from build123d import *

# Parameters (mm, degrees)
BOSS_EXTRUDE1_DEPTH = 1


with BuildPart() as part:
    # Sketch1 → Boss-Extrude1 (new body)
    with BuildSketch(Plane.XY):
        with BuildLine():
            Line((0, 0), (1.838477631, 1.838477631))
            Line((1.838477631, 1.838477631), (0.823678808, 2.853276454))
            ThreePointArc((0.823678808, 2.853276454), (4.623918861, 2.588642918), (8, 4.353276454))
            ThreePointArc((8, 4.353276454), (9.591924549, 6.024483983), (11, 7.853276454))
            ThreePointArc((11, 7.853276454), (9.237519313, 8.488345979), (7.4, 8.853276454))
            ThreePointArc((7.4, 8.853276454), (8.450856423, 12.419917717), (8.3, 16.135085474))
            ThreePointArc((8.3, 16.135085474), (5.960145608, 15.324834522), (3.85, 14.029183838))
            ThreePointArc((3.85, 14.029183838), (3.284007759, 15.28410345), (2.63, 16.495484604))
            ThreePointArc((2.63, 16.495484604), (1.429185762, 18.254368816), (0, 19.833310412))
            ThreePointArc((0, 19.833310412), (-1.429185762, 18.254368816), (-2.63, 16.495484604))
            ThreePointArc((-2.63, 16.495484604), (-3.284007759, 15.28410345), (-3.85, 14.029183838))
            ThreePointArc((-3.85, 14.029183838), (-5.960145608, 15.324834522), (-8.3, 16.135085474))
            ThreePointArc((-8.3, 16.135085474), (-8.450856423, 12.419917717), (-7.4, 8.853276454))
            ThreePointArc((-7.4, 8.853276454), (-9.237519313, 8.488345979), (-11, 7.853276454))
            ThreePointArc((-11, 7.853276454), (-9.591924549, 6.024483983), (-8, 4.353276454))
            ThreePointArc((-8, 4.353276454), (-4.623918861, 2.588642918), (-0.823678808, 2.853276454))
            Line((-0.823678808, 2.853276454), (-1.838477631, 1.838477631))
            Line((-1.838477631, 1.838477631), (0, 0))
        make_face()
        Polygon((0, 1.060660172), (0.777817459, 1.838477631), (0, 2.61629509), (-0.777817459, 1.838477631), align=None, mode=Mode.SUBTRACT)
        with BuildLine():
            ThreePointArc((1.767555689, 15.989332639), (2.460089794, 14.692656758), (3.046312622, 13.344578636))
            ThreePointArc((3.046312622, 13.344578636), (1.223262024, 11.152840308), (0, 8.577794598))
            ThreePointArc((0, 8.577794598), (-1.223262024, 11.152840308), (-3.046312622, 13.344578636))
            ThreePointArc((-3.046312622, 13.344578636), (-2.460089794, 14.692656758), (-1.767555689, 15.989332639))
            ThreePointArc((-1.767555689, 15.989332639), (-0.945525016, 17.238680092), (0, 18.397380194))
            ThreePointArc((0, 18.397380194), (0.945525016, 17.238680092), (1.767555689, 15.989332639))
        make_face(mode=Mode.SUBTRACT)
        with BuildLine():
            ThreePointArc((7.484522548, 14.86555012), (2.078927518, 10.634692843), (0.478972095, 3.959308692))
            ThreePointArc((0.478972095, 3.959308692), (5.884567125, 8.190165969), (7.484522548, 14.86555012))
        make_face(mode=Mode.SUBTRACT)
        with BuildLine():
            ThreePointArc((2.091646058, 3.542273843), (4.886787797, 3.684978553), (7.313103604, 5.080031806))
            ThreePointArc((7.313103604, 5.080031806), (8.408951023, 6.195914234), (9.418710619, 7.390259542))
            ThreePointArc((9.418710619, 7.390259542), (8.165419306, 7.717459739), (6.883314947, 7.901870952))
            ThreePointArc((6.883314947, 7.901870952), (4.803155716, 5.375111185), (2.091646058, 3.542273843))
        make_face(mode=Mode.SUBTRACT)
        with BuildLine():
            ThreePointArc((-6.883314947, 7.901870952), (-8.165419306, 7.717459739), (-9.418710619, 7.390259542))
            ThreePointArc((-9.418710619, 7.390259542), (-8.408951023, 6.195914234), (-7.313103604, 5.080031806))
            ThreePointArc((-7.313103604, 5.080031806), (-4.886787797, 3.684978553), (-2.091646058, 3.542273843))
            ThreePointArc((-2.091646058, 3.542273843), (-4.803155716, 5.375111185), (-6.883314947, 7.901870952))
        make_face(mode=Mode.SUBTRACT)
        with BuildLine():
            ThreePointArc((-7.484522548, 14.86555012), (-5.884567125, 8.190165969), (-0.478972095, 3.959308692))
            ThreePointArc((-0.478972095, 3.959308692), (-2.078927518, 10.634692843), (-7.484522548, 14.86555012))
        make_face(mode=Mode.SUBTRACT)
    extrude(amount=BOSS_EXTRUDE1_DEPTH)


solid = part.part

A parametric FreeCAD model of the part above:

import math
import FreeCAD as App
import Part
import Sketcher
from FreeCAD import Vector
Q = App.Units.Quantity

doc = App.newDocument("Part")
body = doc.addObject("PartDesign::Body", "Body")

sketch1 = body.newObject("Sketcher::SketchObject", "Sketch")
sketch1.AttachmentSupport = (doc.getObject("XY_Plane"), [""])
sketch1.MapMode = "FlatFace"
sketch1.addGeometry(Part.LineSegment(Vector(0, 0, 0), Vector(1.8, 1.8, 0)), False)
sketch1.addGeometry(Part.LineSegment(Vector(1.8, 1.8, 0), Vector(0.8, 2.9, 0)), False)
sketch1.addGeometry(Part.ArcOfCircle(Part.Circle(Vector(3.2, 9.4, 0), Vector(0, 0, 1), 7), math.radians(-110), math.radians(-47)), False)
sketch1.addGeometry(Part.ArcOfCircle(Part.Circle(Vector(-7.1, 20.3, 0), Vector(0, 0, 1), 22), math.radians(-46.62), math.radians(-34.59)), False)
sketch1.addGeometry(Part.ArcOfCircle(Part.Circle(Vector(5.9, -3.6, 0), Vector(0, 0, 1), 12.5), math.radians(65.89), math.radians(83.06)), False)
sketch1.addGeometry(Part.ArcOfCircle(Part.Circle(Vector(-2.9, 13.8, 0), Vector(0, 0, 1), 11.4), math.radians(-26), math.radians(12)), False)
sketch1.addGeometry(Part.ArcOfCircle(Part.Circle(Vector(10.8, 5, 0), Vector(0, 0, 1), 11.4), math.radians(103), math.radians(128)), False)
sketch1.addGeometry(Part.ArcOfCircle(Part.Circle(Vector(-14, 6.7, 0), Vector(0, 0, 1), 19.3), math.radians(22.23), math.radians(30.41)), False)
sketch1.addGeometry(Part.ArcOfCircle(Part.Circle(Vector(-10.8, 8.6, 0), Vector(0, 0, 1), 15.6), math.radians(30.41), math.radians(46.06)), False)
sketch1.addGeometry(Part.ArcOfCircle(Part.Circle(Vector(10.8, 8.6, 0), Vector(0, 0, 1), 15.6), math.radians(133.94), math.radians(149.59)), False)
sketch1.addGeometry(Part.ArcOfCircle(Part.Circle(Vector(14, 6.7, 0), Vector(0, 0, 1), 19.3), math.radians(149.59), math.radians(157.77)), False)
sketch1.addGeometry(Part.ArcOfCircle(Part.Circle(Vector(-10.8, 5, 0), Vector(0, 0, 1), 11.4), math.radians(52), math.radians(77)), False)
sketch1.addGeometry(Part.ArcOfCircle(Part.Circle(Vector(2.9, 13.8, 0), Vector(0, 0, 1), 11.4), math.radians(168), math.radians(206)), False)
sketch1.addGeometry(Part.ArcOfCircle(Part.Circle(Vector(-5.9, -3.6, 0), Vector(0, 0, 1), 12.5), math.radians(96.94), math.radians(114.11)), False)
sketch1.addGeometry(Part.ArcOfCircle(Part.Circle(Vector(7.1, 20.3, 0), Vector(0, 0, 1), 22), math.radians(-145.41), math.radians(-133.38)), False)
sketch1.addGeometry(Part.ArcOfCircle(Part.Circle(Vector(-3.2, 9.4, 0), Vector(0, 0, 1), 7), math.radians(-133), math.radians(-70)), False)
sketch1.addGeometry(Part.LineSegment(Vector(-0.8, 2.9, 0), Vector(-1.8, 1.8, 0)), False)
sketch1.addGeometry(Part.LineSegment(Vector(-1.8, 1.8, 0), Vector(0, 0, 0)), False)
sketch1.addGeometry(Part.LineSegment(Vector(0.8, 1.8, 0), Vector(0, 1.1, 0)), False)
sketch1.addGeometry(Part.LineSegment(Vector(0, 1.1, 0), Vector(-0.8, 1.8, 0)), False)
sketch1.addGeometry(Part.LineSegment(Vector(-0.8, 1.8, 0), Vector(0, 2.6, 0)), False)
sketch1.addGeometry(Part.LineSegment(Vector(0, 2.6, 0), Vector(0.8, 1.8, 0)), False)
sketch1.addGeometry(Part.ArcOfCircle(Part.Circle(Vector(-5.9, -3.6, 0), Vector(0, 0, 1), 11.5), math.radians(94.96), math.radians(107.86)), False)
sketch1.addGeometry(Part.ArcOfCircle(Part.Circle(Vector(2.9, 13.8, 0), Vector(0, 0, 1), 11.4), math.radians(-149), math.radians(-116)), False)
sketch1.addGeometry(Part.ArcOfCircle(Part.Circle(Vector(-3.2, 9.4, 0), Vector(0, 0, 1), 6), math.radians(-133), math.radians(-79)), False)
sketch1.addGeometry(Part.ArcOfCircle(Part.Circle(Vector(7.1, 20.3, 0), Vector(0, 0, 1), 21), math.radians(-141.92), math.radians(-133.38)), False)
sketch1.addGeometry(Part.ArcOfCircle(Part.Circle(Vector(2.9, 13.8, 0), Vector(0, 0, 1), 10.4), math.radians(174), math.radians(251)), False)
sketch1.addGeometry(Part.ArcOfCircle(Part.Circle(Vector(-10.8, 5, 0), Vector(0, 0, 1), 10.4), math.radians(-6), math.radians(71)), False)
sketch1.addGeometry(Part.ArcOfCircle(Part.Circle(Vector(10.8, 5, 0), Vector(0, 0, 1), 10.4), math.radians(109), math.radians(186)), False)
sketch1.addGeometry(Part.ArcOfCircle(Part.Circle(Vector(-2.9, 13.8, 0), Vector(0, 0, 1), 10.4), math.radians(-71), math.radians(6)), False)
sketch1.addGeometry(Part.ArcOfCircle(Part.Circle(Vector(3.2, 9.4, 0), Vector(0, 0, 1), 6), math.radians(-101), math.radians(-47)), False)
sketch1.addGeometry(Part.ArcOfCircle(Part.Circle(Vector(-2.9, 13.8, 0), Vector(0, 0, 1), 11.4), math.radians(-64), math.radians(-31)), False)
sketch1.addGeometry(Part.ArcOfCircle(Part.Circle(Vector(5.9, -3.6, 0), Vector(0, 0, 1), 11.5), math.radians(72.14), math.radians(85.04)), False)
sketch1.addGeometry(Part.ArcOfCircle(Part.Circle(Vector(-7.1, 20.3, 0), Vector(0, 0, 1), 21), math.radians(-46.62), math.radians(-38.08)), False)
sketch1.addGeometry(Part.ArcOfCircle(Part.Circle(Vector(-10.8, 8.6, 0), Vector(0, 0, 1), 14.6), math.radians(30.41), math.radians(42.15)), False)
sketch1.addGeometry(Part.ArcOfCircle(Part.Circle(Vector(-14, 6.7, 0), Vector(0, 0, 1), 18.3), math.radians(21.2), math.radians(30.41)), False)
sketch1.addGeometry(Part.ArcOfCircle(Part.Circle(Vector(10.8, 5, 0), Vector(0, 0, 1), 11.4), math.radians(133), math.radians(162)), False)
sketch1.addGeometry(Part.ArcOfCircle(Part.Circle(Vector(-10.8, 5, 0), Vector(0, 0, 1), 11.4), math.radians(18), math.radians(47)), False)
sketch1.addGeometry(Part.ArcOfCircle(Part.Circle(Vector(14, 6.7, 0), Vector(0, 0, 1), 18.3), math.radians(149.59), math.radians(158.8)), False)
sketch1.addGeometry(Part.ArcOfCircle(Part.Circle(Vector(10.8, 8.6, 0), Vector(0, 0, 1), 14.6), math.radians(137.85), math.radians(149.59)), False)
sketch1.addConstraint(Sketcher.Constraint("Coincident", 0, 2, 1, 1))
sketch1.addConstraint(Sketcher.Constraint("Coincident", 1, 2, 2, 1))
sketch1.addConstraint(Sketcher.Constraint("Tangent", 2, 2, 3, 1))
sketch1.addConstraint(Sketcher.Constraint("Coincident", 3, 2, 4, 1))
sketch1.addConstraint(Sketcher.Constraint("Coincident", 4, 2, 5, 1))
sketch1.addConstraint(Sketcher.Constraint("Coincident", 5, 2, 6, 1))
sketch1.addConstraint(Sketcher.Constraint("Coincident", 6, 2, 7, 1))
sketch1.addConstraint(Sketcher.Constraint("Tangent", 7, 2, 8, 1))
sketch1.addConstraint(Sketcher.Constraint("Coincident", 8, 2, 9, 1))
sketch1.addConstraint(Sketcher.Constraint("Tangent", 9, 2, 10, 1))
sketch1.addConstraint(Sketcher.Constraint("Coincident", 10, 2, 11, 1))
sketch1.addConstraint(Sketcher.Constraint("Coincident", 11, 2, 12, 1))
sketch1.addConstraint(Sketcher.Constraint("Coincident", 12, 2, 13, 1))
sketch1.addConstraint(Sketcher.Constraint("Coincident", 13, 2, 14, 1))
sketch1.addConstraint(Sketcher.Constraint("Tangent", 14, 2, 15, 1))
sketch1.addConstraint(Sketcher.Constraint("Coincident", 15, 2, 16, 1))
sketch1.addConstraint(Sketcher.Constraint("Coincident", 16, 2, 17, 1))
sketch1.addConstraint(Sketcher.Constraint("Coincident", 17, 2, 0, 1))
sketch1.addConstraint(Sketcher.Constraint("Coincident", 18, 2, 19, 1))
sketch1.addConstraint(Sketcher.Constraint("Coincident", 19, 2, 20, 1))
sketch1.addConstraint(Sketcher.Constraint("Coincident", 20, 2, 21, 1))
sketch1.addConstraint(Sketcher.Constraint("Coincident", 21, 2, 18, 1))
sketch1.addConstraint(Sketcher.Constraint("Coincident", 22, 1, 23, 1))
sketch1.addConstraint(Sketcher.Constraint("Coincident", 23, 2, 24, 2))
sketch1.addConstraint(Sketcher.Constraint("Tangent", 24, 1, 25, 2))
sketch1.addConstraint(Sketcher.Constraint("Coincident", 25, 1, 22, 2))
sketch1.addConstraint(Sketcher.Constraint("Coincident", 26, 1, 27, 2))
sketch1.addConstraint(Sketcher.Constraint("Coincident", 27, 1, 26, 2))
sketch1.addConstraint(Sketcher.Constraint("Coincident", 28, 1, 29, 2))
sketch1.addConstraint(Sketcher.Constraint("Coincident", 29, 1, 28, 2))
sketch1.addConstraint(Sketcher.Constraint("Coincident", 30, 1, 31, 1))
sketch1.addConstraint(Sketcher.Constraint("Coincident", 31, 2, 32, 2))
sketch1.addConstraint(Sketcher.Constraint("Coincident", 32, 1, 33, 2))
sketch1.addConstraint(Sketcher.Constraint("Tangent", 33, 1, 30, 2))
sketch1.addConstraint(Sketcher.Constraint("Tangent", 34, 1, 35, 2))
sketch1.addConstraint(Sketcher.Constraint("Coincident", 35, 1, 36, 1))
sketch1.addConstraint(Sketcher.Constraint("Coincident", 36, 2, 37, 1))
sketch1.addConstraint(Sketcher.Constraint("Coincident", 37, 2, 38, 2))
sketch1.addConstraint(Sketcher.Constraint("Tangent", 38, 1, 39, 2))
sketch1.addConstraint(Sketcher.Constraint("Coincident", 39, 1, 34, 2))
sketch1.addConstraint(Sketcher.Constraint("Coincident", 17, 2, -1, 1))
sketch1.addConstraint(Sketcher.Constraint("Coincident", 22, 3, 13, 3))
sketch1.addConstraint(Sketcher.Constraint("Coincident", 23, 3, 12, 3))
sketch1.addConstraint(Sketcher.Constraint("Coincident", 24, 3, 15, 3))
sketch1.addConstraint(Sketcher.Constraint("Coincident", 25, 3, 14, 3))
sketch1.addConstraint(Sketcher.Constraint("Coincident", 26, 3, 12, 3))
sketch1.addConstraint(Sketcher.Constraint("Coincident", 27, 3, 11, 3))
sketch1.addConstraint(Sketcher.Constraint("Coincident", 28, 3, 6, 3))
sketch1.addConstraint(Sketcher.Constraint("Coincident", 29, 3, 5, 3))
sketch1.addConstraint(Sketcher.Constraint("Coincident", 30, 3, 2, 3))
sketch1.addConstraint(Sketcher.Constraint("Coincident", 31, 3, 5, 3))
sketch1.addConstraint(Sketcher.Constraint("Coincident", 32, 3, 4, 3))
sketch1.addConstraint(Sketcher.Constraint("Coincident", 33, 3, 3, 3))
sketch1.addConstraint(Sketcher.Constraint("Coincident", 34, 3, 8, 3))
sketch1.addConstraint(Sketcher.Constraint("Coincident", 35, 3, 7, 3))
sketch1.addConstraint(Sketcher.Constraint("Coincident", 36, 3, 6, 3))
sketch1.addConstraint(Sketcher.Constraint("Coincident", 37, 3, 11, 3))
sketch1.addConstraint(Sketcher.Constraint("Coincident", 38, 3, 10, 3))
sketch1.addConstraint(Sketcher.Constraint("Coincident", 39, 3, 9, 3))
sketch1.addConstraint(Sketcher.Constraint("Equal", 5, 6))
sketch1.addConstraint(Sketcher.Constraint("Equal", 8, 9))
sketch1.addConstraint(Sketcher.Constraint("Equal", 7, 10))
sketch1.addConstraint(Sketcher.Constraint("Equal", 6, 11))
sketch1.addConstraint(Sketcher.Constraint("Equal", 11, 12))
sketch1.addConstraint(Sketcher.Constraint("Equal", 4, 13))
sketch1.addConstraint(Sketcher.Constraint("Equal", 3, 14))
sketch1.addConstraint(Sketcher.Constraint("Equal", 2, 15))
sketch1.addConstraint(Sketcher.Constraint("Equal", 12, 23))
sketch1.addConstraint(Sketcher.Constraint("Equal", 26, 27))
sketch1.addConstraint(Sketcher.Constraint("Equal", 27, 28))
sketch1.addConstraint(Sketcher.Constraint("Equal", 28, 29))
sketch1.addConstraint(Sketcher.Constraint("Equal", 24, 30))
sketch1.addConstraint(Sketcher.Constraint("Equal", 23, 31))
sketch1.addConstraint(Sketcher.Constraint("Equal", 22, 32))
sketch1.addConstraint(Sketcher.Constraint("Equal", 31, 36))
sketch1.addConstraint(Sketcher.Constraint("Equal", 36, 37))
sketch1.addConstraint(Sketcher.Constraint("Equal", 35, 38))
sketch1.addConstraint(Sketcher.Constraint("Symmetric", 8, 3, 9, 3, -2))
sketch1.addConstraint(Sketcher.Constraint("Symmetric", 6, 3, 11, 3, -2))
sketch1.addConstraint(Sketcher.Constraint("Symmetric", 5, 3, 12, 3, -2))
sketch1.addConstraint(Sketcher.Constraint("Symmetric", 4, 3, 13, 3, -2))
sketch1.addConstraint(Sketcher.Constraint("Symmetric", 3, 3, 14, 3, -2))
sketch1.addConstraint(Sketcher.Constraint("Symmetric", 1, 2, 15, 2, -2))
sketch1.addConstraint(Sketcher.Constraint("Symmetric", 0, 2, 16, 2, -2))
sketch1.addConstraint(Sketcher.Constraint("Symmetric", 19, 2, 21, 2, -2))
sketch1.addConstraint(Sketcher.Constraint("PointOnObject", 18, 2, -2))
sketch1.addConstraint(Sketcher.Constraint("PointOnObject", 20, 2, -2))
sketch1.addConstraint(Sketcher.Constraint("Perpendicular", 0, 1))
sketch1.addConstraint(Sketcher.Constraint("Perpendicular", 1, 16))
sketch1.addConstraint(Sketcher.Constraint("Perpendicular", 17, 18))
sketch1.addConstraint(Sketcher.Constraint("Perpendicular", 19, 20))
sketch1.addConstraint(Sketcher.Constraint("Horizontal", 7, 3, 10, 3))
sketch1.addConstraint(Sketcher.Constraint("Horizontal", 16, 2, 19, 2))
sketch1.addConstraint(Sketcher.Constraint("Radius", 2, Q("7 mm")))
sketch1.addConstraint(Sketcher.Constraint("Radius", 3, Q("22 mm")))
sketch1.addConstraint(Sketcher.Constraint("Radius", 24, Q("6 mm")))
sketch1.addConstraint(Sketcher.Constraint("Radius", 7, Q("19.3 mm")))
sketch1.addConstraint(Sketcher.Constraint("Radius", 8, Q("15.6 mm")))
sketch1.addConstraint(Sketcher.Constraint("Radius", 34, Q("14.6 mm")))
sketch1.addConstraint(Sketcher.Constraint("DistanceX", -1, 1, 2, 2, Q("8 mm")))
sketch1.addConstraint(Sketcher.Constraint("DistanceX", -1, 1, 3, 2, Q("11 mm")))
sketch1.addConstraint(Sketcher.Constraint("Distance", 0, Q("2.6 mm")))
sketch1.addConstraint(Sketcher.Constraint("Distance", 18, Q("1.1 mm")))
sketch1.addConstraint(Sketcher.Constraint("DistanceX", -1, 1, 4, 2, Q("7.4 mm")))
sketch1.addConstraint(Sketcher.Constraint("DistanceX", -1, 1, 5, 2, Q("8.3 mm")))
sketch1.addConstraint(Sketcher.Constraint("DistanceX", -1, 1, 6, 2, Q("3.85 mm")))
sketch1.addConstraint(Sketcher.Constraint("DistanceX", -1, 1, 7, 2, Q("2.63 mm")))
sketch1.addConstraint(Sketcher.Constraint("Radius", 4, Q("12.518042 mm")))
sketch1.addConstraint(Sketcher.Constraint("Radius", 5, Q("11.417726 mm")))
sketch1.addConstraint(Sketcher.Constraint("Radius", 22, Q("11.518042 mm")))
sketch1.addConstraint(Sketcher.Constraint("Radius", 26, Q("10.417725 mm")))
sketch1.addConstraint(Sketcher.Constraint("DistanceX", 3, 3, -1, 1, Q("7.111721 mm")))
sketch1.addConstraint(Sketcher.Constraint("DistanceY", 4, 3, -1, 1, Q("3.573012 mm")))
sketch1.addConstraint(Sketcher.Constraint("DistanceY", -1, 1, 7, 3, Q("6.726752 mm")))
sketch1.addConstraint(Sketcher.Constraint("DistanceX", 8, 3, -1, 1, Q("10.824131 mm")))
sketch1.addConstraint(Sketcher.Constraint("DistanceX", -1, 1, 1, 2, Q("0.823679 mm")))
sketch1.addConstraint(Sketcher.Constraint("DistanceY", -1, 1, 26, 1, Q("14.86555 mm")))
pad1 = body.newObject("PartDesign::Pad", "Pad")
pad1.Profile = sketch1
pad1.Length = 1

doc.recompute()
